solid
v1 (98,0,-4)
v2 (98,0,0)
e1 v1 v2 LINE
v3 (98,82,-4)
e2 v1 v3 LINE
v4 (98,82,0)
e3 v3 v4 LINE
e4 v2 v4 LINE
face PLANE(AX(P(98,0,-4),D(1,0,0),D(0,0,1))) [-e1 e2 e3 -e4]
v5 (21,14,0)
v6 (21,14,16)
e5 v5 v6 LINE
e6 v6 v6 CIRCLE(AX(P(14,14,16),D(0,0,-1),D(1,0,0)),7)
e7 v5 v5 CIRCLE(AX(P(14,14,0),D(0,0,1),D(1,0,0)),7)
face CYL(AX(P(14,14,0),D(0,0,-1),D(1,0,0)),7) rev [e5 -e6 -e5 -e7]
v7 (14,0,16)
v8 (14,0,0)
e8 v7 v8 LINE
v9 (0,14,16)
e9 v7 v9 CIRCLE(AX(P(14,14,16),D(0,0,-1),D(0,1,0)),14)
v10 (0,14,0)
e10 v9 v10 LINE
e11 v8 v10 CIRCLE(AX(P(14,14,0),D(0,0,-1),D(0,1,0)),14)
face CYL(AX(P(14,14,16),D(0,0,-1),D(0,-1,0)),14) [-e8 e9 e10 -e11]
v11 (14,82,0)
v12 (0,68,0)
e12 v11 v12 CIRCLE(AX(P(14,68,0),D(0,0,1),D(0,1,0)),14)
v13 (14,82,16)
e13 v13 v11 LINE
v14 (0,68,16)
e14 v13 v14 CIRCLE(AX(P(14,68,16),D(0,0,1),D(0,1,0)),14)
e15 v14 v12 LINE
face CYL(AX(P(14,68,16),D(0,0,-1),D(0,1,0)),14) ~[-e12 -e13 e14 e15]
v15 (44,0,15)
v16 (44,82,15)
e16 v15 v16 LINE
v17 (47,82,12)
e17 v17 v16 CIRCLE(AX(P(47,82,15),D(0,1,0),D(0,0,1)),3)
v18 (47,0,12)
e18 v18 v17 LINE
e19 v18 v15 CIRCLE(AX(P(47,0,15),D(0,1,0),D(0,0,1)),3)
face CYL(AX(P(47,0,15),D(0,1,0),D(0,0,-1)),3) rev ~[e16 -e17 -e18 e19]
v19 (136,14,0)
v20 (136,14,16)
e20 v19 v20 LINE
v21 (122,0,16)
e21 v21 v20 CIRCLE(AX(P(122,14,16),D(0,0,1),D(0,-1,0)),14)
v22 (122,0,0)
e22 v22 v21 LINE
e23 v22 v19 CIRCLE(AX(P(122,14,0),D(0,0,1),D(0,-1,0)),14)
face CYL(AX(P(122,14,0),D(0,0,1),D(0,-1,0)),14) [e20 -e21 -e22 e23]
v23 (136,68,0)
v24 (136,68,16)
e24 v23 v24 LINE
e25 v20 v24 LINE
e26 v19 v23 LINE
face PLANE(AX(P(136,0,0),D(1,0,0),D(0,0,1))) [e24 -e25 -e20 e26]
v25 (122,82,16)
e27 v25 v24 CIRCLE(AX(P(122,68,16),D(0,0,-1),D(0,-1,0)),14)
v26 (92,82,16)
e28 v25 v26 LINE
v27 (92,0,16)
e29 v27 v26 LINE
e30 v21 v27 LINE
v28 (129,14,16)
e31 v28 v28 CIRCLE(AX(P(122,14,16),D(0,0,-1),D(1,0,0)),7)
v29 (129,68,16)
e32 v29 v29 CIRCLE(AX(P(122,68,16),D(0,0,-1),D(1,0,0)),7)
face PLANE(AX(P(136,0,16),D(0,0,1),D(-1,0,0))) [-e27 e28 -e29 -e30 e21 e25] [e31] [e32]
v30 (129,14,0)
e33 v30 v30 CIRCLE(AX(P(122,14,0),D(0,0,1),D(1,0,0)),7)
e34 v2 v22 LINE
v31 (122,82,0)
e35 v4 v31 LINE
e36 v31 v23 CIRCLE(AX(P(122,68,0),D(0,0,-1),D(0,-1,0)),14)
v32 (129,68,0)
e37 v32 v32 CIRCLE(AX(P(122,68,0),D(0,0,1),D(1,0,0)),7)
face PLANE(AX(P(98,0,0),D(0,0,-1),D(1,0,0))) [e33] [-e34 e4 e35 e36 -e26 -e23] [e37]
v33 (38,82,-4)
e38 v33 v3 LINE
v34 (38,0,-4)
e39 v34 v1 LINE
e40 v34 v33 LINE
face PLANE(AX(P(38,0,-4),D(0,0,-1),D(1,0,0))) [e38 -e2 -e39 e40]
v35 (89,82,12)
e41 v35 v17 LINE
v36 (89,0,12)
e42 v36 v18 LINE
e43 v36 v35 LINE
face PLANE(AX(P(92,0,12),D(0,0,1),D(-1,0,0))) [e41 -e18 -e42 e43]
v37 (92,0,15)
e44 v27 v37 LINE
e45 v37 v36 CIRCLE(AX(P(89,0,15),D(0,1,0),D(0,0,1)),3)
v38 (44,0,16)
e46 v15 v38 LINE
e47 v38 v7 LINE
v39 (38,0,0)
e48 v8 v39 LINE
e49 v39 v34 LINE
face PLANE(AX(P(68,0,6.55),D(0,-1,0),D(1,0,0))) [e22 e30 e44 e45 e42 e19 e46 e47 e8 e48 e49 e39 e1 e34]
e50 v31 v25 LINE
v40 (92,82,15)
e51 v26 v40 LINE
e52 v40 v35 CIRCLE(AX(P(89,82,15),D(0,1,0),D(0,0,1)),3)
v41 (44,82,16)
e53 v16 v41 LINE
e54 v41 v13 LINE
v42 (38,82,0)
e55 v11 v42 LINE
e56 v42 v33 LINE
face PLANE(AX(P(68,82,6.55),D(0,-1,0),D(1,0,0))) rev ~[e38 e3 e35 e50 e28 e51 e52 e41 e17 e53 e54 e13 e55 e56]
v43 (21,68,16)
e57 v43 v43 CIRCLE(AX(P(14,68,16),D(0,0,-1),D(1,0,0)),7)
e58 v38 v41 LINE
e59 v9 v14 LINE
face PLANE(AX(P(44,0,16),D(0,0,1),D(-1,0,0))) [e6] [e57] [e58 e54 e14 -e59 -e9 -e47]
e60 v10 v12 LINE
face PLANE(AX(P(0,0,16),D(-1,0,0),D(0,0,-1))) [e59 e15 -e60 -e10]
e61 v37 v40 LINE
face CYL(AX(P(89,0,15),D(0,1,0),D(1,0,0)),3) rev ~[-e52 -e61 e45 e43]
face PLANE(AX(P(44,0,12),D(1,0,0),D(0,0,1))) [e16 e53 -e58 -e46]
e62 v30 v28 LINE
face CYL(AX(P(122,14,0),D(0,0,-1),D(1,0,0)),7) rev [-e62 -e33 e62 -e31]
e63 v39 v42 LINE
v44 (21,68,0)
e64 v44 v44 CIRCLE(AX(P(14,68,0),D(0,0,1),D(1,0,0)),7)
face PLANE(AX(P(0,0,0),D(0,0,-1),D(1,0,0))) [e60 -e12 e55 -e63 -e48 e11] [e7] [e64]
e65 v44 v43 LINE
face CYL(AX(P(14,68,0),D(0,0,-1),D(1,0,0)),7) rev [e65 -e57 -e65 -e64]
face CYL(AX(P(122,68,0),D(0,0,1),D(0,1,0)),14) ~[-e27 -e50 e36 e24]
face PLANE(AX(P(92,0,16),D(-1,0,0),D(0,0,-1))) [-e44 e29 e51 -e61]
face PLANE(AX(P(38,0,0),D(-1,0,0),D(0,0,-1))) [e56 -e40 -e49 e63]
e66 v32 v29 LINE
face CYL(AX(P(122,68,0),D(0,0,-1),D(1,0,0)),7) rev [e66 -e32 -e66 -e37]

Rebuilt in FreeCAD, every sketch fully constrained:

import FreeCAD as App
import Part
import Sketcher

V = App.Vector


def edges_at(feature, points):
    """Names of the edges that pass closest to the given points."""
    edges = feature.Shape.Edges
    near = lambda p: min(range(len(edges)), key=lambda i: edges[i].distToShape(Part.Vertex(*p))[0])
    return sorted({f"Edge{near(p) + 1}" for p in points})


def add_polygon(sketch, points):
    """Adds a closed chain of lines whose ends are joined by coincident constraints."""
    first, n = sketch.GeometryCount, len(points)
    for a, b in zip(points, points[1:] + points[:1]):
        sketch.addGeometry(Part.LineSegment(App.Vector(*a, 0), App.Vector(*b, 0)), False)
    for i in range(n):
        sketch.addConstraint(Sketcher.Constraint("Coincident", first + i, 2, first + (i + 1) % n, 1))

doc = App.newDocument("Part")
body = doc.addObject("PartDesign::Body", "Body")

# Sketch on XZ plane
sketch1 = body.newObject("Sketcher::SketchObject", "Sketch")
sketch1.AttachmentSupport = (doc.getObject("XZ_Plane"), [""])
sketch1.MapMode = "FlatFace"
add_polygon(sketch1, [(0, 16), (0, 0), (38, 0), (38, -4), (98, -4), (98, 0), (136, 0), (136, 16), (92, 16), (92, 12), (44, 12), (44, 16)])  # lines 0-11
sketch1.addConstraint(Sketcher.Constraint("Vertical", 0))
sketch1.addConstraint(Sketcher.Constraint("Horizontal", 1))
sketch1.addConstraint(Sketcher.Constraint("Vertical", 2))
sketch1.addConstraint(Sketcher.Constraint("Horizontal", 3))
sketch1.addConstraint(Sketcher.Constraint("Vertical", 4))
sketch1.addConstraint(Sketcher.Constraint("Horizontal", 5))
sketch1.addConstraint(Sketcher.Constraint("Vertical", 6))
sketch1.addConstraint(Sketcher.Constraint("Horizontal", 7))
sketch1.addConstraint(Sketcher.Constraint("Vertical", 8))
sketch1.addConstraint(Sketcher.Constraint("Horizontal", 9))
sketch1.addConstraint(Sketcher.Constraint("Vertical", 10))
sketch1.addConstraint(Sketcher.Constraint("Horizontal", 11))
sketch1.addConstraint(Sketcher.Constraint("Coincident", 0, 2, -1, 1))
sketch1.addConstraint(Sketcher.Constraint("PointOnObject", 4, 2, -1))
sketch1.addConstraint(Sketcher.Constraint("Horizontal", 7, 2, 10, 2))
sketch1.addConstraint(Sketcher.Constraint("Equal", 1, 5))
sketch1.addConstraint(Sketcher.Constraint("Equal", 7, 11))
sketch1.addConstraint(Sketcher.Constraint("Equal", 4, 8))
sketch1.addConstraint(Sketcher.Constraint("DistanceX", 1, 1, 1, 2, 38.0))
sketch1.addConstraint(Sketcher.Constraint("DistanceX", 3, 1, 3, 2, 60.0))
sketch1.addConstraint(Sketcher.Constraint("DistanceX", 7, 2, 7, 1, 44.0))
sketch1.addConstraint(Sketcher.Constraint("DistanceY", 0, 2, 0, 1, 16.0))
sketch1.addConstraint(Sketcher.Constraint("DistanceY", 2, 2, 2, 1, 4.0))
pad1 = body.newObject("PartDesign::Pad", "Pad")
pad1.Profile = sketch1
pad1.Length = 82
pad1.Reversed = True
doc.recompute()

fillet = body.newObject("PartDesign::Fillet", "Fillet")
fillet.Base = (pad1, edges_at(pad1, [(44, 41, 12), (92, 41, 12)]))
fillet.Radius = 3

# Sketch on XY plane
sketch2 = body.newObject("Sketcher::SketchObject", "Sketch001")
sketch2.AttachmentSupport = (doc.getObject("XY_Plane"), [""])
sketch2.MapMode = "FlatFace"
sketch2.addGeometry(Part.Circle(V(14, 14, 0), V(0, 0, 1), 7), False)
sketch2.addGeometry(Part.Circle(V(122, 14, 0), V(0, 0, 1), 7), False)
sketch2.addGeometry(Part.Circle(V(14, 68, 0), V(0, 0, 1), 7), False)
sketch2.addGeometry(Part.Circle(V(122, 68, 0), V(0, 0, 1), 7), False)
sketch2.addConstraint(Sketcher.Constraint("Equal", 0, 1))
sketch2.addConstraint(Sketcher.Constraint("Equal", 1, 2))
sketch2.addConstraint(Sketcher.Constraint("Equal", 2, 3))
sketch2.addConstraint(Sketcher.Constraint("Horizontal", 0, 3, 1, 3))
sketch2.addConstraint(Sketcher.Constraint("Horizontal", 2, 3, 3, 3))
sketch2.addConstraint(Sketcher.Constraint("Vertical", 0, 3, 2, 3))
sketch2.addConstraint(Sketcher.Constraint("Vertical", 1, 3, 3, 3))
sketch2.addConstraint(Sketcher.Constraint("Diameter", 0, 14.0))
sketch2.addConstraint(Sketcher.Constraint("DistanceX", -1, 1, 0, 3, 14.0))
sketch2.addConstraint(Sketcher.Constraint("DistanceY", -1, 1, 0, 3, 14.0))
sketch2.addConstraint(Sketcher.Constraint("DistanceX", -1, 1, 1, 3, 122.0))
sketch2.addConstraint(Sketcher.Constraint("DistanceY", -1, 1, 2, 3, 68.0))
pocket1 = body.newObject("PartDesign::Pocket", "Pocket")
pocket1.Profile = sketch2
pocket1.Type = "ThroughAll"
pocket1.Reversed = True
doc.recompute()

fillet2 = body.newObject("PartDesign::Fillet", "Fillet001")
fillet2.Base = (pocket1, edges_at(pocket1, [
    (0, 0, 8),
    (0, 82, 8),
    (136, 0, 8),
    (136, 82, 8),
]))
fillet2.Radius = 14

doc.recompute()
